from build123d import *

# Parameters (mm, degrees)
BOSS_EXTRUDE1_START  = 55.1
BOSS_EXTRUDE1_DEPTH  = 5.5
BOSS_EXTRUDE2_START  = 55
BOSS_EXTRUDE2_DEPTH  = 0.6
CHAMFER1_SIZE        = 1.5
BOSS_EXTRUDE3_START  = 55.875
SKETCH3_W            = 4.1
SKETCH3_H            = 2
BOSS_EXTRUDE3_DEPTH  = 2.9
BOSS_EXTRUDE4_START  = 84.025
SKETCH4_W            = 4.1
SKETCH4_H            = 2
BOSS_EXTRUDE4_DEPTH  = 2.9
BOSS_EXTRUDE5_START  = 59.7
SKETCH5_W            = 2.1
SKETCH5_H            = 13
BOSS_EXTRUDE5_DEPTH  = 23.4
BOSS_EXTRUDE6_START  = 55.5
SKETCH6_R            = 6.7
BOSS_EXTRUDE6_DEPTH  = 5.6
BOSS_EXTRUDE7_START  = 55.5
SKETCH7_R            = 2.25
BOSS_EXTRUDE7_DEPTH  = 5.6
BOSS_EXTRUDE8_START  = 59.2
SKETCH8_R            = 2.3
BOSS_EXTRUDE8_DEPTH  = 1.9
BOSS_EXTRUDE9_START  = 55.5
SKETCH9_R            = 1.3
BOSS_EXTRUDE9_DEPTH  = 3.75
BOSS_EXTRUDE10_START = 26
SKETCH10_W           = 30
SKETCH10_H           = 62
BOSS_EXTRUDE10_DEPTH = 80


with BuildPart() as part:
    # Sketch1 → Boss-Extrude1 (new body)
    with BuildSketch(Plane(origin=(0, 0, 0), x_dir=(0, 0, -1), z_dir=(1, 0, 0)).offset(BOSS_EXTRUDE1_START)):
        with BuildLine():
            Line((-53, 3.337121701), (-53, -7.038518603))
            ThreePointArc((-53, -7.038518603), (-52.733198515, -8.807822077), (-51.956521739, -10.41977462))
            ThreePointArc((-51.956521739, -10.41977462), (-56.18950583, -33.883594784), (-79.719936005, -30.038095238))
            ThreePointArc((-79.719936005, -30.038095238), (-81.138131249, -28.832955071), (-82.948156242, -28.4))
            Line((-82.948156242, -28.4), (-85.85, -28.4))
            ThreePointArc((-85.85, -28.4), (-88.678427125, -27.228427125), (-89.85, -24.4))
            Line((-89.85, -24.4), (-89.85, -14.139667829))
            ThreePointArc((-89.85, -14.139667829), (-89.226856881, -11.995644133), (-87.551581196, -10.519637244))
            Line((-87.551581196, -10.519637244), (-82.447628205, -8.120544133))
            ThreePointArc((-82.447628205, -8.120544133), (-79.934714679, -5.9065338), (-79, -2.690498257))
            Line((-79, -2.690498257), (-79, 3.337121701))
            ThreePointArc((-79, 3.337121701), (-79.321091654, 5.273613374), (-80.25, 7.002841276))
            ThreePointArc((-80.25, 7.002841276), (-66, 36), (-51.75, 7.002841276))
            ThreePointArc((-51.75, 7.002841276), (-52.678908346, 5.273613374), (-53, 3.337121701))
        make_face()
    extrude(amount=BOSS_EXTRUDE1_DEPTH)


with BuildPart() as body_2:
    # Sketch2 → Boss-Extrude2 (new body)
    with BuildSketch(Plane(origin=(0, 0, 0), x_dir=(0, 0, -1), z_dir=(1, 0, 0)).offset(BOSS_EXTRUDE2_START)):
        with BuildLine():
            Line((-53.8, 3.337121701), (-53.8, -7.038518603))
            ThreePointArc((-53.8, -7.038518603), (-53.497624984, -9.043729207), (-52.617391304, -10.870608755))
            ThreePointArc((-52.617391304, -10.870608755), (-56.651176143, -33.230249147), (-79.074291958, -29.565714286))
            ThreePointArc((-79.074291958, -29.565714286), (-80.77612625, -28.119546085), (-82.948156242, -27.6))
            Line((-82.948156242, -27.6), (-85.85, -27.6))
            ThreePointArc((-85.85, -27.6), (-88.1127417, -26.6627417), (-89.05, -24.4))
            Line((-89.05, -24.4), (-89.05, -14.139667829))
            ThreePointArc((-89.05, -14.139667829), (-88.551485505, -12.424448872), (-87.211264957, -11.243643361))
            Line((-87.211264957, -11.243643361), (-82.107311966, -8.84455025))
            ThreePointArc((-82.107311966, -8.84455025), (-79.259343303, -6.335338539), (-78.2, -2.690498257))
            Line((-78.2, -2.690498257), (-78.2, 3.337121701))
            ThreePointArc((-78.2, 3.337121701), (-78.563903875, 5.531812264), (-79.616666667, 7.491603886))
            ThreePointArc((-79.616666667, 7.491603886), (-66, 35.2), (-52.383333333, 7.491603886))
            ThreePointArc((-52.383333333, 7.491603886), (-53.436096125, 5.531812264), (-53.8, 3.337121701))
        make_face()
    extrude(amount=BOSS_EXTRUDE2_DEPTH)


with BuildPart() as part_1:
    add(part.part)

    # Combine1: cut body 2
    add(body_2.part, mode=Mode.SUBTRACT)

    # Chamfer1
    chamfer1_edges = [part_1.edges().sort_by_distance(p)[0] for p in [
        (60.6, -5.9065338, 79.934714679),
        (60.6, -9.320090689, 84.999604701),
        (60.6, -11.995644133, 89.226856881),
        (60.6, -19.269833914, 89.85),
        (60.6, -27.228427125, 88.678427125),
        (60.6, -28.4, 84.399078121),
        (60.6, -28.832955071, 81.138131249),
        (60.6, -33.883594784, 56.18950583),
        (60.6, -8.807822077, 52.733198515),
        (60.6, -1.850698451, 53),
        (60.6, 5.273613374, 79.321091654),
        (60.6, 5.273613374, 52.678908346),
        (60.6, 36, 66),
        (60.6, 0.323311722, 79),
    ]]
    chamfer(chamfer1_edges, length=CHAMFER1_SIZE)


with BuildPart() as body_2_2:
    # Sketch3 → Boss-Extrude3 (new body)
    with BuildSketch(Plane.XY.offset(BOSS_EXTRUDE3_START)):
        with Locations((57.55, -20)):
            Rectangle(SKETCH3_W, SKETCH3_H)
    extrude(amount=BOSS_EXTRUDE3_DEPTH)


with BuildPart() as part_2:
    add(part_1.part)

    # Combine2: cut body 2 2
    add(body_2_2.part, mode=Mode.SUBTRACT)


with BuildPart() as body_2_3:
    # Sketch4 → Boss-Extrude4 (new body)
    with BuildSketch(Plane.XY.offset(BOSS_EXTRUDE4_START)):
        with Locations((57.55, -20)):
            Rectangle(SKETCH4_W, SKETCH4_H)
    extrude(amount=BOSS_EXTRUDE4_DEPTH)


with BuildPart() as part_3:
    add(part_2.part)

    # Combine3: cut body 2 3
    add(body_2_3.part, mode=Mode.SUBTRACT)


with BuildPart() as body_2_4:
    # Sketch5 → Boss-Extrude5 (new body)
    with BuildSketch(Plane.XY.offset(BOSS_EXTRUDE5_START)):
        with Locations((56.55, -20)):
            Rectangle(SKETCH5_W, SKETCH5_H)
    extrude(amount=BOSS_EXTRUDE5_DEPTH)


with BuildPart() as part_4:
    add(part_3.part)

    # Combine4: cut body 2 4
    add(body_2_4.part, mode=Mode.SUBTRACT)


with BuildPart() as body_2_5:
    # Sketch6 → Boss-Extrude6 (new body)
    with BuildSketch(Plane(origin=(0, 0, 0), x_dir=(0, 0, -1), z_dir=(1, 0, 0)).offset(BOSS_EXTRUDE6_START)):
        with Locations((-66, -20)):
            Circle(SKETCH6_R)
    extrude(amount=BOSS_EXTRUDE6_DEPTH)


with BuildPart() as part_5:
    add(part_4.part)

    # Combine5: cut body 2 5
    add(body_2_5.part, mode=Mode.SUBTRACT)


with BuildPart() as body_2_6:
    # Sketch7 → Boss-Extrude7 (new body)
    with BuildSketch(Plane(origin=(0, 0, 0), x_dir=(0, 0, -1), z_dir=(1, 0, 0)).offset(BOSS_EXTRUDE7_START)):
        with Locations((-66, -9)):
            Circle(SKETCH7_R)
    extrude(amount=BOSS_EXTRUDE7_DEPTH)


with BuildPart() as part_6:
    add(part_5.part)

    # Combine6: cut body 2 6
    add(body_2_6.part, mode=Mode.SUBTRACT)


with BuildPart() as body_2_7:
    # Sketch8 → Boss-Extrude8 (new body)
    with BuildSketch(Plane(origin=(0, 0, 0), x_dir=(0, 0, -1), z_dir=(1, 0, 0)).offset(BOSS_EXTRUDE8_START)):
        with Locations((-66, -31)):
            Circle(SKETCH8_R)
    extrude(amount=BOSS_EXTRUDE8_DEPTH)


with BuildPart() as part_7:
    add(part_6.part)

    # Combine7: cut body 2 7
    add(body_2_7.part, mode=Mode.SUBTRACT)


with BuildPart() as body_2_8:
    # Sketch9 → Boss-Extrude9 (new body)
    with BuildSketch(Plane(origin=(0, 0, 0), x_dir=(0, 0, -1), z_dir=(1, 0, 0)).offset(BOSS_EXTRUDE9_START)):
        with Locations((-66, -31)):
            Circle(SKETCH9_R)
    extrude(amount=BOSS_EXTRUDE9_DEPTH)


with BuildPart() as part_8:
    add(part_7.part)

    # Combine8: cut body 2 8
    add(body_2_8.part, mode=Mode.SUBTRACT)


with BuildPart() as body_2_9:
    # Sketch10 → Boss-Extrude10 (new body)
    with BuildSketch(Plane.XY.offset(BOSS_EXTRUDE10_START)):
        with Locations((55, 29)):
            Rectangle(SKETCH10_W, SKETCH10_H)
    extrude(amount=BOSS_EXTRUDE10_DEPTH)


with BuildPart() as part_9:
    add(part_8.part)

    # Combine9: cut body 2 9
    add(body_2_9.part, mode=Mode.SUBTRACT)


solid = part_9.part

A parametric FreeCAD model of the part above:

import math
import FreeCAD as App
import Part
import Sketcher
Q = App.Units.Quantity


def edges_at(feature, points):
    """Names of the edges that pass closest to the given points."""
    edges = feature.Shape.Edges
    near = lambda p: min(range(len(edges)), key=lambda i: edges[i].distToShape(Part.Vertex(*p))[0])
    return sorted({f"Edge{near(p) + 1}" for p in points})


def add_polygon(sketch, points):
    """Adds a closed chain of lines whose ends are joined by coincident constraints."""
    first, n = sketch.GeometryCount, len(points)
    for a, b in zip(points, points[1:] + points[:1]):
        sketch.addGeometry(Part.LineSegment(App.Vector(*a, 0), App.Vector(*b, 0)), False)
    for i in range(n):
        sketch.addConstraint(Sketcher.Constraint("Coincident", first + i, 2, first + (i + 1) % n, 1))

doc = App.newDocument("Part")
body = doc.addObject("PartDesign::Body", "Body")

# Sketch on YZ plane
sketch1 = body.newObject("Sketcher::SketchObject", "Sketch")
sketch1.AttachmentSupport = (doc.getObject("YZ_Plane"), [""])
sketch1.MapMode = "FlatFace"
sketch1.AttachmentOffset = App.Placement(App.Vector(0, 0, 55.1), App.Rotation())
sketch1.addGeometry(Part.LineSegment(App.Vector(-7.038519, 53, 0), App.Vector(3.337122, 53, 0)), False)
sketch1.addGeometry(Part.ArcOfCircle(Part.Circle(App.Vector(3.337122, 47, 0), App.Vector(0, 0, 1), 6), math.radians(52.341538), math.radians(90)), False)
sketch1.addGeometry(Part.ArcOfCircle(Part.Circle(App.Vector(18, 66, 0), App.Vector(0, 0, 1), 18), math.radians(-127.658462), math.radians(127.658462)), False)
sketch1.addGeometry(Part.ArcOfCircle(Part.Circle(App.Vector(3.337122, 85, 0), App.Vector(0, 0, 1), 6), math.radians(-90), math.radians(-52.341538)), False)
sketch1.addGeometry(Part.LineSegment(App.Vector(3.337122, 79, 0), App.Vector(-2.690498, 79, 0)), False)
sketch1.addGeometry(Part.ArcOfCircle(Part.Circle(App.Vector(-2.690498, 85, 0), App.Vector(0, 0, 1), 6), math.radians(-154.824313), math.radians(-90)), False)
sketch1.addGeometry(Part.LineSegment(App.Vector(-8.120544, 82.447628, 0), App.Vector(-10.519637, 87.551581, 0)), False)
sketch1.addGeometry(Part.ArcOfCircle(Part.Circle(App.Vector(-14.139668, 85.85, 0), App.Vector(0, 0, 1), 4), math.radians(25.175687), math.radians(90)), False)
sketch1.addGeometry(Part.LineSegment(App.Vector(-14.139668, 89.85, 0), App.Vector(-24.4, 89.85, 0)), False)
sketch1.addGeometry(Part.ArcOfCircle(Part.Circle(App.Vector(-24.4, 85.85, 0), App.Vector(0, 0, 1), 4), math.radians(90), math.radians(180)), False)
sketch1.addGeometry(Part.LineSegment(App.Vector(-28.4, 85.85, 0), App.Vector(-28.4, 82.948156, 0)), False)
sketch1.addGeometry(Part.ArcOfCircle(Part.Circle(App.Vector(-32.4, 82.948156, 0), App.Vector(0, 0, 1), 4), math.radians(-53.809193), math.radians(0)), False)
sketch1.addGeometry(Part.ArcOfCircle(Part.Circle(App.Vector(-20, 66, 0), App.Vector(0, 0, 1), 17), math.radians(126.190807), math.radians(304.301153)), False)
sketch1.addGeometry(Part.ArcOfCircle(Part.Circle(App.Vector(-7.038519, 47, 0), App.Vector(0, 0, 1), 6), math.radians(90), math.radians(124.301153)), False)
sketch1.addConstraint(Sketcher.Constraint("Tangent", 0, 2, 1, 2))
sketch1.addConstraint(Sketcher.Constraint("Tangent", 1, 1, 2, 1))
sketch1.addConstraint(Sketcher.Constraint("Tangent", 2, 2, 3, 2))
sketch1.addConstraint(Sketcher.Constraint("Tangent", 3, 1, 4, 1))
sketch1.addConstraint(Sketcher.Constraint("Tangent", 4, 2, 5, 2))
sketch1.addConstraint(Sketcher.Constraint("Tangent", 5, 1, 6, 1))
sketch1.addConstraint(Sketcher.Constraint("Tangent", 6, 2, 7, 1))
sketch1.addConstraint(Sketcher.Constraint("Tangent", 7, 2, 8, 1))
sketch1.addConstraint(Sketcher.Constraint("Tangent", 8, 2, 9, 1))
sketch1.addConstraint(Sketcher.Constraint("Tangent", 9, 2, 10, 1))
sketch1.addConstraint(Sketcher.Constraint("Tangent", 10, 2, 11, 2))
sketch1.addConstraint(Sketcher.Constraint("Tangent", 11, 1, 12, 1))
sketch1.addConstraint(Sketcher.Constraint("Tangent", 12, 2, 13, 2))
sketch1.addConstraint(Sketcher.Constraint("Tangent", 13, 1, 0, 1))
sketch1.addConstraint(Sketcher.Constraint("Horizontal", 0))
sketch1.addConstraint(Sketcher.Constraint("Horizontal", 4))
sketch1.addConstraint(Sketcher.Constraint("Horizontal", 8))
sketch1.addConstraint(Sketcher.Constraint("Vertical", 10))
sketch1.addConstraint(Sketcher.Constraint("Equal", 1, 3))
sketch1.addConstraint(Sketcher.Constraint("Equal", 3, 5))
sketch1.addConstraint(Sketcher.Constraint("Equal", 7, 9))
sketch1.addConstraint(Sketcher.Constraint("Equal", 9, 11))
sketch1.addConstraint(Sketcher.Constraint("Equal", 5, 13))
sketch1.addConstraint(Sketcher.Constraint("Horizontal", 2, 3, 12, 3))
sketch1.addConstraint(Sketcher.Constraint("Vertical", 1, 3, 3, 3))
sketch1.addConstraint(Sketcher.Constraint("Radius", 1, Q("6 mm")))
sketch1.addConstraint(Sketcher.Constraint("Radius", 2, Q("18 mm")))
sketch1.addConstraint(Sketcher.Constraint("Radius", 7, Q("4 mm")))
sketch1.addConstraint(Sketcher.Constraint("Radius", 12, Q("17 mm")))
sketch1.addConstraint(Sketcher.Constraint("DistanceY", -1, 1, 1, 3, Q("47 mm")))
sketch1.addConstraint(Sketcher.Constraint("DistanceX", -1, 1, 2, 3, Q("18 mm")))
sketch1.addConstraint(Sketcher.Constraint("DistanceY", -1, 1, 2, 3, Q("66 mm")))
sketch1.addConstraint(Sketcher.Constraint("DistanceX", 12, 3, -1, 1, Q("20 mm")))
sketch1.addConstraint(Sketcher.Constraint("DistanceX", 9, 3, -1, 1, Q("24.4 mm")))
sketch1.addConstraint(Sketcher.Constraint("DistanceY", 2, 2, 7, 3, Q("5.6 mm")))
sketch1.addConstraint(Sketcher.Constraint("DistanceX", 4, 2, 4, 1, Q("6.02762 mm")))
sketch1.addConstraint(Sketcher.Constraint("Distance", 6, Q("5.639679 mm")))
pad1 = body.newObject("PartDesign::Pad", "Pad")
pad1.Profile = sketch1
pad1.Length = 5.5
body2 = doc.addObject("PartDesign::Body", "Body001")

# Sketch on YZ plane
sketch2 = body2.newObject("Sketcher::SketchObject", "Sketch001")
sketch2.AttachmentSupport = (doc.getObject("YZ_Plane001"), [""])
sketch2.MapMode = "FlatFace"
sketch2.AttachmentOffset = App.Placement(App.Vector(0, 0, 55), App.Rotation())
sketch2.addGeometry(Part.LineSegment(App.Vector(-7.038519, 53.8, 0), App.Vector(3.337122, 53.8, 0)), False)
sketch2.addGeometry(Part.ArcOfCircle(Part.Circle(App.Vector(3.337122, 47, 0), App.Vector(0, 0, 1), 6.8), math.radians(52.341538), math.radians(90)), False)
sketch2.addGeometry(Part.ArcOfCircle(Part.Circle(App.Vector(18, 66, 0), App.Vector(0, 0, 1), 17.2), math.radians(-127.658462), math.radians(127.658462)), False)
sketch2.addGeometry(Part.ArcOfCircle(Part.Circle(App.Vector(3.337122, 85, 0), App.Vector(0, 0, 1), 6.8), math.radians(-90), math.radians(-52.341538)), False)
sketch2.addGeometry(Part.LineSegment(App.Vector(3.337122, 78.2, 0), App.Vector(-2.690498, 78.2, 0)), False)
sketch2.addGeometry(Part.ArcOfCircle(Part.Circle(App.Vector(-2.690498, 85, 0), App.Vector(0, 0, 1), 6.8), math.radians(-154.824313), math.radians(-90)), False)
sketch2.addGeometry(Part.LineSegment(App.Vector(-8.84455, 82.107312, 0), App.Vector(-11.243643, 87.211265, 0)), False)
sketch2.addGeometry(Part.ArcOfCircle(Part.Circle(App.Vector(-14.139668, 85.85, 0), App.Vector(0, 0, 1), 3.2), math.radians(25.175687), math.radians(90)), False)
sketch2.addGeometry(Part.LineSegment(App.Vector(-14.139668, 89.05, 0), App.Vector(-24.4, 89.05, 0)), False)
sketch2.addGeometry(Part.ArcOfCircle(Part.Circle(App.Vector(-24.4, 85.85, 0), App.Vector(0, 0, 1), 3.2), math.radians(90), math.radians(180)), False)
sketch2.addGeometry(Part.LineSegment(App.Vector(-27.6, 85.85, 0), App.Vector(-27.6, 82.948156, 0)), False)
sketch2.addGeometry(Part.ArcOfCircle(Part.Circle(App.Vector(-32.4, 82.948156, 0), App.Vector(0, 0, 1), 4.8), math.radians(-53.809193), math.radians(0)), False)
sketch2.addGeometry(Part.ArcOfCircle(Part.Circle(App.Vector(-20, 66, 0), App.Vector(0, 0, 1), 16.2), math.radians(126.190807), math.radians(304.301153)), False)
sketch2.addGeometry(Part.ArcOfCircle(Part.Circle(App.Vector(-7.038519, 47, 0), App.Vector(0, 0, 1), 6.8), math.radians(90), math.radians(124.301153)), False)
sketch2.addConstraint(Sketcher.Constraint("Tangent", 0, 2, 1, 2))
sketch2.addConstraint(Sketcher.Constraint("Tangent", 1, 1, 2, 1))
sketch2.addConstraint(Sketcher.Constraint("Tangent", 2, 2, 3, 2))
sketch2.addConstraint(Sketcher.Constraint("Tangent", 3, 1, 4, 1))
sketch2.addConstraint(Sketcher.Constraint("Tangent", 4, 2, 5, 2))
sketch2.addConstraint(Sketcher.Constraint("Tangent", 5, 1, 6, 1))
sketch2.addConstraint(Sketcher.Constraint("Tangent", 6, 2, 7, 1))
sketch2.addConstraint(Sketcher.Constraint("Tangent", 7, 2, 8, 1))
sketch2.addConstraint(Sketcher.Constraint("Tangent", 8, 2, 9, 1))
sketch2.addConstraint(Sketcher.Constraint("Tangent", 9, 2, 10, 1))
sketch2.addConstraint(Sketcher.Constraint("Tangent", 10, 2, 11, 2))
sketch2.addConstraint(Sketcher.Constraint("Tangent", 11, 1, 12, 1))
sketch2.addConstraint(Sketcher.Constraint("Tangent", 12, 2, 13, 2))
sketch2.addConstraint(Sketcher.Constraint("Tangent", 13, 1, 0, 1))
sketch2.addConstraint(Sketcher.Constraint("Horizontal", 0))
sketch2.addConstraint(Sketcher.Constraint("Horizontal", 4))
sketch2.addConstraint(Sketcher.Constraint("Horizontal", 8))
sketch2.addConstraint(Sketcher.Constraint("Vertical", 10))
sketch2.addConstraint(Sketcher.Constraint("Equal", 1, 3))
sketch2.addConstraint(Sketcher.Constraint("Equal", 3, 5))
sketch2.addConstraint(Sketcher.Constraint("Equal", 7, 9))
sketch2.addConstraint(Sketcher.Constraint("Equal", 5, 13))
sketch2.addConstraint(Sketcher.Constraint("Horizontal", 2, 3, 12, 3))
sketch2.addConstraint(Sketcher.Constraint("Vertical", 1, 3, 3, 3))
sketch2.addConstraint(Sketcher.Constraint("Radius", 1, Q("6.8 mm")))
sketch2.addConstraint(Sketcher.Constraint("Radius", 2, Q("17.2 mm")))
sketch2.addConstraint(Sketcher.Constraint("Radius", 7, Q("3.2 mm")))
sketch2.addConstraint(Sketcher.Constraint("Radius", 11, Q("4.8 mm")))
sketch2.addConstraint(Sketcher.Constraint("Radius", 12, Q("16.2 mm")))
sketch2.addConstraint(Sketcher.Constraint("DistanceY", -1, 1, 1, 3, Q("47 mm")))
sketch2.addConstraint(Sketcher.Constraint("DistanceX", -1, 1, 2, 3, Q("18 mm")))
sketch2.addConstraint(Sketcher.Constraint("DistanceY", -1, 1, 2, 3, Q("66 mm")))
sketch2.addConstraint(Sketcher.Constraint("DistanceX", 12, 3, -1, 1, Q("20 mm")))
sketch2.addConstraint(Sketcher.Constraint("DistanceX", 9, 3, -1, 1, Q("24.4 mm")))
sketch2.addConstraint(Sketcher.Constraint("DistanceY", -1, 1, 7, 3, Q("85.85 mm")))
sketch2.addConstraint(Sketcher.Constraint("DistanceX", 4, 2, 4, 1, Q("6.02762 mm")))
sketch2.addConstraint(Sketcher.Constraint("Distance", 6, Q("5.639679 mm")))
pad2 = body2.newObject("PartDesign::Pad", "Pad001")
pad2.Profile = sketch2
pad2.Length = 0.6
doc.recompute()

boolean = body.newObject("PartDesign::Boolean", "Boolean")
boolean.Type = "Cut"
boolean.addObjects([body2])
doc.recompute()

chamfer = body.newObject("PartDesign::Chamfer", "Chamfer")
chamfer.Base = (boolean, edges_at(boolean, [
    (60.6, -5.907, 79.935),
    (60.6, -9.32, 85),
    (60.6, -11.996, 89.227),
    (60.6, -19.27, 89.85),
    (60.6, -27.228, 88.678),
    (60.6, -28.4, 84.399),
    (60.6, -28.833, 81.138),
    (60.6, -33.884, 56.19),
    (60.6, -8.808, 52.733),
    (60.6, -1.851, 53),
    (60.6, 5.274, 79.321),
    (60.6, 5.274, 52.679),
    (60.6, 36, 66),
    (60.6, 0.323, 79),
]))
chamfer.Size = 1.5
body3 = doc.addObject("PartDesign::Body", "Body002")

# Sketch on XY plane
sketch3 = body3.newObject("Sketcher::SketchObject", "Sketch002")
sketch3.AttachmentSupport = (doc.getObject("XY_Plane002"), [""])
sketch3.MapMode = "FlatFace"
sketch3.AttachmentOffset = App.Placement(App.Vector(0, 0, 55.875), App.Rotation())
add_polygon(sketch3, [(55.5, -19), (55.5, -21), (59.6, -21), (59.6, -19)])  # lines 0-3
sketch3.addConstraint(Sketcher.Constraint("Vertical", 0))
sketch3.addConstraint(Sketcher.Constraint("Horizontal", 1))
sketch3.addConstraint(Sketcher.Constraint("Vertical", 2))
sketch3.addConstraint(Sketcher.Constraint("Horizontal", 3))
sketch3.addConstraint(Sketcher.Constraint("DistanceY", 0, 2, 0, 1, Q("2 mm")))
sketch3.addConstraint(Sketcher.Constraint("DistanceX", 1, 1, 1, 2, Q("4.1 mm")))
sketch3.addConstraint(Sketcher.Constraint("DistanceY", 0, 2, -1, 1, Q("21 mm")))
sketch3.addConstraint(Sketcher.Constraint("DistanceX", -1, 1, 0, 2, Q("55.5 mm")))
pad3 = body3.newObject("PartDesign::Pad", "Pad002")
pad3.Profile = sketch3
pad3.Length = 2.9
doc.recompute()

boolean2 = body.newObject("PartDesign::Boolean", "Boolean001")
boolean2.Type = "Cut"
boolean2.addObjects([body3])
body4 = doc.addObject("PartDesign::Body", "Body003")

# Sketch on XY plane
sketch4 = body4.newObject("Sketcher::SketchObject", "Sketch003")
sketch4.AttachmentSupport = (doc.getObject("XY_Plane003"), [""])
sketch4.MapMode = "FlatFace"
sketch4.AttachmentOffset = App.Placement(App.Vector(0, 0, 84.025), App.Rotation())
add_polygon(sketch4, [(55.5, -19), (55.5, -21), (59.6, -21), (59.6, -19)])  # lines 0-3
sketch4.addConstraint(Sketcher.Constraint("Vertical", 0))
sketch4.addConstraint(Sketcher.Constraint("Horizontal", 1))
sketch4.addConstraint(Sketcher.Constraint("Vertical", 2))
sketch4.addConstraint(Sketcher.Constraint("Horizontal", 3))
sketch4.addConstraint(Sketcher.Constraint("DistanceY", 0, 2, 0, 1, Q("2 mm")))
sketch4.addConstraint(Sketcher.Constraint("DistanceX", 1, 1, 1, 2, Q("4.1 mm")))
sketch4.addConstraint(Sketcher.Constraint("DistanceY", 0, 2, -1, 1, Q("21 mm")))
sketch4.addConstraint(Sketcher.Constraint("DistanceX", -1, 1, 0, 2, Q("55.5 mm")))
pad4 = body4.newObject("PartDesign::Pad", "Pad003")
pad4.Profile = sketch4
pad4.Length = 2.9
doc.recompute()

boolean3 = body.newObject("PartDesign::Boolean", "Boolean002")
boolean3.Type = "Cut"
boolean3.addObjects([body4])
body5 = doc.addObject("PartDesign::Body", "Body004")

# Sketch on XY plane
sketch5 = body5.newObject("Sketcher::SketchObject", "Sketch004")
sketch5.AttachmentSupport = (doc.getObject("XY_Plane004"), [""])
sketch5.MapMode = "FlatFace"
sketch5.AttachmentOffset = App.Placement(App.Vector(0, 0, 59.7), App.Rotation())
add_polygon(sketch5, [(55.5, -13.5), (55.5, -26.5), (57.6, -26.5), (57.6, -13.5)])  # lines 0-3
sketch5.addConstraint(Sketcher.Constraint("Vertical", 0))
sketch5.addConstraint(Sketcher.Constraint("Horizontal", 1))
sketch5.addConstraint(Sketcher.Constraint("Vertical", 2))
sketch5.addConstraint(Sketcher.Constraint("Horizontal", 3))
sketch5.addConstraint(Sketcher.Constraint("DistanceY", 0, 2, 0, 1, Q("13 mm")))
sketch5.addConstraint(Sketcher.Constraint("DistanceX", 1, 1, 1, 2, Q("2.1 mm")))
sketch5.addConstraint(Sketcher.Constraint("DistanceX", -1, 1, 0, 2, Q("55.5 mm")))
sketch5.addConstraint(Sketcher.Constraint("DistanceY", 0, 2, -1, 1, Q("26.5 mm")))
pad5 = body5.newObject("PartDesign::Pad", "Pad004")
pad5.Profile = sketch5
pad5.Length = 23.4
doc.recompute()

boolean4 = body.newObject("PartDesign::Boolean", "Boolean003")
boolean4.Type = "Cut"
boolean4.addObjects([body5])
body6 = doc.addObject("PartDesign::Body", "Body005")

# Sketch on YZ plane
sketch6 = body6.newObject("Sketcher::SketchObject", "Sketch005")
sketch6.AttachmentSupport = (doc.getObject("YZ_Plane005"), [""])
sketch6.MapMode = "FlatFace"
sketch6.AttachmentOffset = App.Placement(App.Vector(0, 0, 55.5), App.Rotation())
sketch6.addGeometry(Part.Circle(App.Vector(-20, 66, 0), App.Vector(0, 0, 1), 6.7), False)
sketch6.addConstraint(Sketcher.Constraint("Diameter", 0, Q("13.4 mm")))
sketch6.addConstraint(Sketcher.Constraint("DistanceX", 0, 3, -1, 1, Q("20 mm")))
sketch6.addConstraint(Sketcher.Constraint("DistanceY", -1, 1, 0, 3, Q("66 mm")))
pad6 = body6.newObject("PartDesign::Pad", "Pad005")
pad6.Profile = sketch6
pad6.Length = 5.6
doc.recompute()

boolean5 = body.newObject("PartDesign::Boolean", "Boolean004")
boolean5.Type = "Cut"
boolean5.addObjects([body6])
body7 = doc.addObject("PartDesign::Body", "Body006")

# Sketch on YZ plane
sketch7 = body7.newObject("Sketcher::SketchObject", "Sketch006")
sketch7.AttachmentSupport = (doc.getObject("YZ_Plane006"), [""])
sketch7.MapMode = "FlatFace"
sketch7.AttachmentOffset = App.Placement(App.Vector(0, 0, 55.5), App.Rotation())
sketch7.addGeometry(Part.Circle(App.Vector(-9, 66, 0), App.Vector(0, 0, 1), 2.25), False)
sketch7.addConstraint(Sketcher.Constraint("Diameter", 0, Q("4.5 mm")))
sketch7.addConstraint(Sketcher.Constraint("DistanceX", 0, 3, -1, 1, Q("9 mm")))
sketch7.addConstraint(Sketcher.Constraint("DistanceY", -1, 1, 0, 3, Q("66 mm")))
pad7 = body7.newObject("PartDesign::Pad", "Pad006")
pad7.Profile = sketch7
pad7.Length = 5.6
doc.recompute()

boolean6 = body.newObject("PartDesign::Boolean", "Boolean005")
boolean6.Type = "Cut"
boolean6.addObjects([body7])
body8 = doc.addObject("PartDesign::Body", "Body007")

# Sketch on YZ plane
sketch8 = body8.newObject("Sketcher::SketchObject", "Sketch007")
sketch8.AttachmentSupport = (doc.getObject("YZ_Plane007"), [""])
sketch8.MapMode = "FlatFace"
sketch8.AttachmentOffset = App.Placement(App.Vector(0, 0, 59.2), App.Rotation())
sketch8.addGeometry(Part.Circle(App.Vector(-31, 66, 0), App.Vector(0, 0, 1), 2.3), False)
sketch8.addConstraint(Sketcher.Constraint("Diameter", 0, Q("4.6 mm")))
sketch8.addConstraint(Sketcher.Constraint("DistanceX", 0, 3, -1, 1, Q("31 mm")))
sketch8.addConstraint(Sketcher.Constraint("DistanceY", -1, 1, 0, 3, Q("66 mm")))
pad8 = body8.newObject("PartDesign::Pad", "Pad007")
pad8.Profile = sketch8
pad8.Length = 1.9
doc.recompute()

boolean7 = body.newObject("PartDesign::Boolean", "Boolean006")
boolean7.Type = "Cut"
boolean7.addObjects([body8])
body9 = doc.addObject("PartDesign::Body", "Body008")

# Sketch on YZ plane
sketch9 = body9.newObject("Sketcher::SketchObject", "Sketch008")
sketch9.AttachmentSupport = (doc.getObject("YZ_Plane008"), [""])
sketch9.MapMode = "FlatFace"
sketch9.AttachmentOffset = App.Placement(App.Vector(0, 0, 55.5), App.Rotation())
sketch9.addGeometry(Part.Circle(App.Vector(-31, 66, 0), App.Vector(0, 0, 1), 1.3), False)
sketch9.addConstraint(Sketcher.Constraint("Diameter", 0, Q("2.6 mm")))
sketch9.addConstraint(Sketcher.Constraint("DistanceX", 0, 3, -1, 1, Q("31 mm")))
sketch9.addConstraint(Sketcher.Constraint("DistanceY", -1, 1, 0, 3, Q("66 mm")))
pad9 = body9.newObject("PartDesign::Pad", "Pad008")
pad9.Profile = sketch9
pad9.Length = 3.75
doc.recompute()

boolean8 = body.newObject("PartDesign::Boolean", "Boolean007")
boolean8.Type = "Cut"
boolean8.addObjects([body9])
body10 = doc.addObject("PartDesign::Body", "Body009")

# Sketch on XY plane
sketch10 = body10.newObject("Sketcher::SketchObject", "Sketch009")
sketch10.AttachmentSupport = (doc.getObject("XY_Plane009"), [""])
sketch10.MapMode = "FlatFace"
sketch10.AttachmentOffset = App.Placement(App.Vector(0, 0, 26), App.Rotation())
add_polygon(sketch10, [(40, 60), (40, -2), (70, -2), (70, 60)])  # lines 0-3
sketch10.addConstraint(Sketcher.Constraint("Vertical", 0))
sketch10.addConstraint(Sketcher.Constraint("Horizontal", 1))
sketch10.addConstraint(Sketcher.Constraint("Vertical", 2))
sketch10.addConstraint(Sketcher.Constraint("Horizontal", 3))
sketch10.addConstraint(Sketcher.Constraint("DistanceX", 1, 1, 1, 2, Q("30 mm")))
sketch10.addConstraint(Sketcher.Constraint("DistanceY", 0, 2, 0, 1, Q("62 mm")))
sketch10.addConstraint(Sketcher.Constraint("DistanceX", -1, 1, 0, 2, Q("40 mm")))
sketch10.addConstraint(Sketcher.Constraint("DistanceY", 0, 2, -1, 1, Q("2 mm")))
pad10 = body10.newObject("PartDesign::Pad", "Pad009")
pad10.Profile = sketch10
pad10.Length = 80
doc.recompute()

boolean9 = body.newObject("PartDesign::Boolean", "Boolean008")
boolean9.Type = "Cut"
boolean9.addObjects([body10])

doc.recompute()
